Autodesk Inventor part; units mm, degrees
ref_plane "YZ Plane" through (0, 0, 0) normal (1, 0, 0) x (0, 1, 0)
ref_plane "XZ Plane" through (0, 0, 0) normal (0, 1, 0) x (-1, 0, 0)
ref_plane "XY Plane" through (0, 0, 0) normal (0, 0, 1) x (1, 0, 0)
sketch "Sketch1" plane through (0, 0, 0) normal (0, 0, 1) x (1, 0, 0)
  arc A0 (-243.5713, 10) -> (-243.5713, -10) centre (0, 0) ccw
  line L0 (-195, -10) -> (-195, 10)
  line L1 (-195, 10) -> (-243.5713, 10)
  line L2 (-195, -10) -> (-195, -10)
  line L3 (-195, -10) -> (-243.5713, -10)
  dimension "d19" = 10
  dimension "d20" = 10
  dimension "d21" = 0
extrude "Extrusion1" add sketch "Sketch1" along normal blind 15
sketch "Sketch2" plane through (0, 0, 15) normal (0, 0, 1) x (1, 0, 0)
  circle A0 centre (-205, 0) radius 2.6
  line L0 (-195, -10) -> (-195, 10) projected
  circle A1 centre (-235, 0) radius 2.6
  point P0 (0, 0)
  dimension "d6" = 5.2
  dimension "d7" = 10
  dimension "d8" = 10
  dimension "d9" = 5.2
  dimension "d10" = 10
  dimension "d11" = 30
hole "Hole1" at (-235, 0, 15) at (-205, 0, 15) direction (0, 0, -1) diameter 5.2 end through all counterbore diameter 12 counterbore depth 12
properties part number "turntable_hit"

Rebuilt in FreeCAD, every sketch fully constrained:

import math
import FreeCAD as App
import Part
import Sketcher

doc = App.newDocument("Part")
body = doc.addObject("PartDesign::Body", "Body")

sketch1 = body.newObject("Sketcher::SketchObject", "Sketch")
sketch1.AttachmentSupport = (doc.getObject("XY_Plane"), [""])
sketch1.MapMode = "FlatFace"
sketch1.addGeometry([
    Part.LineSegment(App.Vector(-195, 10, 0), App.Vector(-244, 10, 0)),
    Part.ArcOfCircle(Part.Circle(App.Vector(0, 0, 0), App.Vector(0, 0, 1), 244), math.radians(177.65), math.radians(182.35)),
    Part.LineSegment(App.Vector(-244, -10, 0), App.Vector(-195, -10, 0)),
    Part.LineSegment(App.Vector(-195, -10, 0), App.Vector(-195, 10, 0)),
], False)
sketch1.addConstraint([
    Sketcher.Constraint("Coincident", 0, 2, 1, 1),
    Sketcher.Constraint("Coincident", 1, 2, 2, 1),
    Sketcher.Constraint("Coincident", 2, 2, 3, 1),
    Sketcher.Constraint("Coincident", 3, 2, 0, 1),
    Sketcher.Constraint("Horizontal", 0),
    Sketcher.Constraint("Horizontal", 2),
    Sketcher.Constraint("Vertical", 3),
    Sketcher.Constraint("Coincident", 1, 3, -1, 1),
    Sketcher.Constraint("Vertical", 0, 2, 1, 2),
    Sketcher.Constraint("DistanceY", -1, 1, 0, 2, 10.0),
    Sketcher.Constraint("DistanceX", 2, 2, -1, 1, 195.0),
    Sketcher.Constraint("Radius", 1, 243.7765),
])
pad1 = body.newObject("PartDesign::Pad", "Pad")
pad1.Profile = sketch1
pad1.Length = 15

sketch2 = body.newObject("Sketcher::SketchObject", "Sketch001")
sketch2.AttachmentSupport = (doc.getObject("XY_Plane"), [""])
sketch2.MapMode = "FlatFace"
sketch2.AttachmentOffset = App.Placement(App.Vector(0, 0, 15), App.Rotation())
sketch2.addGeometry([
    Part.Circle(App.Vector(-235, 0, 0), App.Vector(0, 0, 1), 2.6),
    Part.Circle(App.Vector(-205, 0, 0), App.Vector(0, 0, 1), 2.6),
], False)
sketch2.addConstraint([
    Sketcher.Constraint("Equal", 0, 1),
    Sketcher.Constraint("PointOnObject", 0, 3, -1),
    Sketcher.Constraint("PointOnObject", 1, 3, -1),
    Sketcher.Constraint("Diameter", 0, 5.2),
    Sketcher.Constraint("DistanceX", 0, 3, -1, 1, 235.0),
    Sketcher.Constraint("DistanceX", 1, 3, -1, 1, 205.0),
])
doc.recompute()
hole = body.newObject("PartDesign::Hole", "Hole")
hole.Profile = sketch2
hole.ThreadType = "None"
hole.Diameter = 5.2
hole.DepthType = "ThroughAll"
hole.HoleCutType = "Counterbore"
hole.HoleCutDiameter = 12
hole.HoleCutDepth = 12

doc.recompute()
